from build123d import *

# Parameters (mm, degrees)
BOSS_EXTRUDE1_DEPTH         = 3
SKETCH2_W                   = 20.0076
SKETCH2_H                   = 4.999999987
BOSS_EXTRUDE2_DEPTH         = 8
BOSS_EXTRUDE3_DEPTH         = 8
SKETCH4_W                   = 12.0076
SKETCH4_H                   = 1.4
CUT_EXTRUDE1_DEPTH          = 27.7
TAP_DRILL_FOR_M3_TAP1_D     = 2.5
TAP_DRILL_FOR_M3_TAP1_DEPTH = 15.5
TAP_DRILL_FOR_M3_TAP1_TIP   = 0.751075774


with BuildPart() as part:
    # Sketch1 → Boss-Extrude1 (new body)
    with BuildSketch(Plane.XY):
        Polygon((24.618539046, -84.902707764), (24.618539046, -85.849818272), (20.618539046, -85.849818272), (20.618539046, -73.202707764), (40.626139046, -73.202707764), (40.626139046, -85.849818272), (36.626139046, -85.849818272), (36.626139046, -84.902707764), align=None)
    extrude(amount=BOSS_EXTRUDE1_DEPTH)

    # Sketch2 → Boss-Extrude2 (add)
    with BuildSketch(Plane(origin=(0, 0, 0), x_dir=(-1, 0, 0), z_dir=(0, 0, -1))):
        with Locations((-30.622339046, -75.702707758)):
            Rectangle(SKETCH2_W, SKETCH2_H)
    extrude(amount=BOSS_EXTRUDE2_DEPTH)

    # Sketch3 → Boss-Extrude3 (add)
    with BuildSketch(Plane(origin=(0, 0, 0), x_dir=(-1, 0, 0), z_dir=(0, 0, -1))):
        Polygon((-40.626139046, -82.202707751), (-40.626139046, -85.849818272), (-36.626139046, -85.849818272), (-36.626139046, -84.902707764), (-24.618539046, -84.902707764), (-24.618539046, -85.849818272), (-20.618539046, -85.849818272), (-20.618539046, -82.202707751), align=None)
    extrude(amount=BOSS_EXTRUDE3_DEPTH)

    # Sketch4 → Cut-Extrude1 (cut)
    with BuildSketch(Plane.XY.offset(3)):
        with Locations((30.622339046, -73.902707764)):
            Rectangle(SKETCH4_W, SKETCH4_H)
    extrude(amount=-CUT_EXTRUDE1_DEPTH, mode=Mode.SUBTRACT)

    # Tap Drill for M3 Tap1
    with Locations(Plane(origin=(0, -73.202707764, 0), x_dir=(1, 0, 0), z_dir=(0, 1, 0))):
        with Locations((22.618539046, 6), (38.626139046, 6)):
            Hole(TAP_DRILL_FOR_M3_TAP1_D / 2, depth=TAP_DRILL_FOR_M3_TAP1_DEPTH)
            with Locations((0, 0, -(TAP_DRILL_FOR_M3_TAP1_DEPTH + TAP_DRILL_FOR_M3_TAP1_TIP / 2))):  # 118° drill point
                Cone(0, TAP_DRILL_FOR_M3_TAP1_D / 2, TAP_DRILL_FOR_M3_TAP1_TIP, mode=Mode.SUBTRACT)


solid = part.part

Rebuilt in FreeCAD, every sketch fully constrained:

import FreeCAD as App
import Part
import Sketcher
from FreeCAD import Vector
Q = App.Units.Quantity


def add_polygon(sketch, points):
    """Adds a closed chain of lines whose ends are joined by coincident constraints."""
    first, n = sketch.GeometryCount, len(points)
    for a, b in zip(points, points[1:] + points[:1]):
        sketch.addGeometry(Part.LineSegment(App.Vector(*a, 0), App.Vector(*b, 0)), False)
    for i in range(n):
        sketch.addConstraint(Sketcher.Constraint("Coincident", first + i, 2, first + (i + 1) % n, 1))

doc = App.newDocument("Part")
body = doc.addObject("PartDesign::Body", "Body")

sketch1 = body.newObject("Sketcher::SketchObject", "Sketch")
sketch1.AttachmentSupport = (doc.getObject("XY_Plane"), [""])
sketch1.MapMode = "FlatFace"
add_polygon(sketch1, [(24.6, -85.8), (24.6, -84.9), (36.6, -84.9), (36.6, -85.8), (40.6, -85.8), (40.6, -73.2), (20.6, -73.2), (20.6, -85.8)])
sketch1.addConstraint(Sketcher.Constraint("Vertical", 0))
sketch1.addConstraint(Sketcher.Constraint("Horizontal", 1))
sketch1.addConstraint(Sketcher.Constraint("Vertical", 2))
sketch1.addConstraint(Sketcher.Constraint("Horizontal", 3))
sketch1.addConstraint(Sketcher.Constraint("Vertical", 4))
sketch1.addConstraint(Sketcher.Constraint("Horizontal", 5))
sketch1.addConstraint(Sketcher.Constraint("Vertical", 6))
sketch1.addConstraint(Sketcher.Constraint("Horizontal", 7))
sketch1.addConstraint(Sketcher.Constraint("Horizontal", 3, 2, 6, 2))
sketch1.addConstraint(Sketcher.Constraint("Equal", 3, 7))
sketch1.addConstraint(Sketcher.Constraint("DistanceX", 3, 1, 3, 2, Q("4 mm")))
sketch1.addConstraint(Sketcher.Constraint("DistanceY", 1, 2, 4, 2, Q("11.7 mm")))
sketch1.addConstraint(Sketcher.Constraint("DistanceX", 1, 1, 1, 2, Q("12.0076 mm")))
sketch1.addConstraint(Sketcher.Constraint("DistanceY", 0, 1, 0, 2, Q("0.947111 mm")))
sketch1.addConstraint(Sketcher.Constraint("DistanceX", -1, 1, 0, 2, Q("24.618539 mm")))
sketch1.addConstraint(Sketcher.Constraint("DistanceY", 2, 2, -1, 1, Q("85.849818 mm")))
pad1 = body.newObject("PartDesign::Pad", "Pad")
pad1.Profile = sketch1
pad1.Length = 3

sketch2 = body.newObject("Sketcher::SketchObject", "Sketch001")
sketch2.AttachmentSupport = (doc.getObject("XY_Plane"), [""])
sketch2.MapMode = "FlatFace"
add_polygon(sketch2, [(40.6, -73.2), (40.6, -78.2), (20.6, -78.2), (20.6, -73.2)])
sketch2.addConstraint(Sketcher.Constraint("Vertical", 0))
sketch2.addConstraint(Sketcher.Constraint("Horizontal", 1))
sketch2.addConstraint(Sketcher.Constraint("Vertical", 2))
sketch2.addConstraint(Sketcher.Constraint("Horizontal", 3))
sketch2.addConstraint(Sketcher.Constraint("DistanceY", 0, 2, 0, 1, Q("5 mm")))
sketch2.addConstraint(Sketcher.Constraint("DistanceX", 1, 2, 1, 1, Q("20.0076 mm")))
sketch2.addConstraint(Sketcher.Constraint("DistanceX", -1, 1, 0, 2, Q("40.626139 mm")))
sketch2.addConstraint(Sketcher.Constraint("DistanceY", 0, 2, -1, 1, Q("78.202708 mm")))
pad2 = body.newObject("PartDesign::Pad", "Pad001")
pad2.Profile = sketch2
pad2.Length = 8
pad2.Reversed = True

sketch3 = body.newObject("Sketcher::SketchObject", "Sketch002")
sketch3.AttachmentSupport = (doc.getObject("XY_Plane"), [""])
sketch3.MapMode = "FlatFace"
add_polygon(sketch3, [(40.6, -82.2), (40.6, -85.8), (36.6, -85.8), (36.6, -84.9), (24.6, -84.9), (24.6, -85.8), (20.6, -85.8), (20.6, -82.2)])
sketch3.addConstraint(Sketcher.Constraint("Vertical", 0))
sketch3.addConstraint(Sketcher.Constraint("Horizontal", 1))
sketch3.addConstraint(Sketcher.Constraint("Vertical", 2))
sketch3.addConstraint(Sketcher.Constraint("Horizontal", 3))
sketch3.addConstraint(Sketcher.Constraint("Vertical", 4))
sketch3.addConstraint(Sketcher.Constraint("Horizontal", 5))
sketch3.addConstraint(Sketcher.Constraint("Vertical", 6))
sketch3.addConstraint(Sketcher.Constraint("Horizontal", 7))
sketch3.addConstraint(Sketcher.Constraint("Horizontal", 1, 2, 4, 2))
sketch3.addConstraint(Sketcher.Constraint("Equal", 1, 5))
sketch3.addConstraint(Sketcher.Constraint("DistanceX", 1, 2, 1, 1, Q("4 mm")))
sketch3.addConstraint(Sketcher.Constraint("DistanceY", 3, 2, 6, 2, Q("2.7 mm")))
sketch3.addConstraint(Sketcher.Constraint("DistanceX", 3, 2, 3, 1, Q("12.0076 mm")))
sketch3.addConstraint(Sketcher.Constraint("DistanceY", 0, 2, 0, 1, Q("3.647111 mm")))
sketch3.addConstraint(Sketcher.Constraint("DistanceX", -1, 1, 0, 2, Q("40.626139 mm")))
sketch3.addConstraint(Sketcher.Constraint("DistanceY", 0, 2, -1, 1, Q("85.849818 mm")))
pad3 = body.newObject("PartDesign::Pad", "Pad002")
pad3.Profile = sketch3
pad3.Length = 8
pad3.Reversed = True

sketch4 = body.newObject("Sketcher::SketchObject", "Sketch003")
sketch4.AttachmentSupport = (doc.getObject("XY_Plane"), [""])
sketch4.MapMode = "FlatFace"
sketch4.AttachmentOffset = App.Placement(Vector(0, 0, 3), App.Rotation())
add_polygon(sketch4, [(24.6, -73.2), (24.6, -74.6), (36.6, -74.6), (36.6, -73.2)])
sketch4.addConstraint(Sketcher.Constraint("Vertical", 0))
sketch4.addConstraint(Sketcher.Constraint("Horizontal", 1))
sketch4.addConstraint(Sketcher.Constraint("Vertical", 2))
sketch4.addConstraint(Sketcher.Constraint("Horizontal", 3))
sketch4.addConstraint(Sketcher.Constraint("DistanceY", 0, 2, 0, 1, Q("1.4 mm")))
sketch4.addConstraint(Sketcher.Constraint("DistanceX", 1, 1, 1, 2, Q("12.0076 mm")))
sketch4.addConstraint(Sketcher.Constraint("DistanceX", -1, 1, 0, 2, Q("24.618539 mm")))
sketch4.addConstraint(Sketcher.Constraint("DistanceY", 0, 2, -1, 1, Q("74.602708 mm")))
pocket1 = body.newObject("PartDesign::Pocket", "Pocket")
pocket1.Profile = sketch4
pocket1.Length = 27.7

sketch5 = body.newObject("Sketcher::SketchObject", "Sketch004")
sketch5.AttachmentSupport = (doc.getObject("XZ_Plane"), [""])
sketch5.MapMode = "FlatFace"
sketch5.AttachmentOffset = App.Placement(Vector(0, 0, 73.202708), App.Rotation())
sketch5.addGeometry(Part.Circle(Vector(22.6, -6, 0), Vector(0, 0, 1), 1.2), False)
sketch5.addGeometry(Part.Circle(Vector(38.6, -6, 0), Vector(0, 0, 1), 1.2), False)
sketch5.addConstraint(Sketcher.Constraint("Equal", 0, 1))
sketch5.addConstraint(Sketcher.Constraint("Horizontal", 0, 3, 1, 3))
sketch5.addConstraint(Sketcher.Constraint("Diameter", 0, Q("2.5 mm")))
sketch5.addConstraint(Sketcher.Constraint("DistanceY", 0, 3, -1, 1, Q("6 mm")))
sketch5.addConstraint(Sketcher.Constraint("DistanceX", 0, 3, 1, 3, Q("16.0076 mm")))
sketch5.addConstraint(Sketcher.Constraint("DistanceX", -1, 1, 0, 3, Q("22.618539 mm")))
doc.recompute()
hole = body.newObject("PartDesign::Hole", "Hole")
hole.Profile = sketch5
hole.ThreadType = "None"
hole.Diameter = 2.5
hole.DepthType = "Dimension"
hole.Depth = 15.5
hole.DrillPoint = "Angled"
hole.DrillPointAngle = 118
hole.Reversed = True

doc.recompute()
